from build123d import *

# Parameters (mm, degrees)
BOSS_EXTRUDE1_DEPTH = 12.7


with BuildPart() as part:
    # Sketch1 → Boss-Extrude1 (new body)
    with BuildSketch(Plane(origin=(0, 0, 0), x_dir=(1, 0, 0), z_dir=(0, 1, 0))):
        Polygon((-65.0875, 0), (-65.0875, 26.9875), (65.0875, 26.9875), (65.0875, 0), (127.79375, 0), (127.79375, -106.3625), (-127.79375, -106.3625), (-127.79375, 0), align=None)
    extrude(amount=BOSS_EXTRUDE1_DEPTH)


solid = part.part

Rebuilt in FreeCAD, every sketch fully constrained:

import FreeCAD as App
import Part
import Sketcher

V = App.Vector
Q = App.Units.Quantity


def add_polygon(sketch, points):
    """Adds a closed chain of lines whose ends are joined by coincident constraints."""
    first, n = sketch.GeometryCount, len(points)
    for a, b in zip(points, points[1:] + points[:1]):
        sketch.addGeometry(Part.LineSegment(App.Vector(*a, 0), App.Vector(*b, 0)), False)
    for i in range(n):
        sketch.addConstraint(Sketcher.Constraint("Coincident", first + i, 2, first + (i + 1) % n, 1))

doc = App.newDocument("Part")
params = doc.addObject("Spreadsheet::Sheet", "Params")
for row, (alias, value) in enumerate([
    ("sketch1_width", "2.46875 in"),
    ("sketch1_width2", "10.0625 in"),
    ("sketch1_height", "1.0625 in"),
    ("sketch1_height2", "4.1875 in"),
    ("pad1_length", "0.5 in"),
], start=1):
    params.set(f"A{row}", alias)
    params.set(f"B{row}", "=" + value)
    params.setAlias(f"B{row}", alias)

body = doc.addObject("PartDesign::Body", "Body")

sketch1 = body.newObject("Sketcher::SketchObject", "Sketch")
sketch1.AttachmentSupport = (doc.getObject("XZ_Plane"), [""])
sketch1.MapMode = "FlatFace"
add_polygon(sketch1, [(-65, -27), (-65, 0), (-128, 0), (-128, 106), (128, 106), (128, 0), (65, 0), (65, -27)])
sketch1.addConstraint(Sketcher.Constraint("Vertical", 0))
sketch1.addConstraint(Sketcher.Constraint("Horizontal", 1))
sketch1.addConstraint(Sketcher.Constraint("Vertical", 2))
sketch1.addConstraint(Sketcher.Constraint("Horizontal", 3))
sketch1.addConstraint(Sketcher.Constraint("Vertical", 4))
sketch1.addConstraint(Sketcher.Constraint("Horizontal", 5))
sketch1.addConstraint(Sketcher.Constraint("Vertical", 6))
sketch1.addConstraint(Sketcher.Constraint("Horizontal", 7))
sketch1.addConstraint(Sketcher.Constraint("Symmetric", 1, 2, 4, 2, -1, 1))
sketch1.addConstraint(Sketcher.Constraint("Symmetric", 0, 2, 5, 2, -2))
sketch1.addConstraint(Sketcher.Constraint("DistanceX", 1, 2, 1, 1, Q("2.46875 in")))
sketch1.addConstraint(Sketcher.Constraint("DistanceX", 3, 1, 3, 2, Q("10.0625 in")))
sketch1.addConstraint(Sketcher.Constraint("DistanceY", 0, 1, 0, 2, Q("1.0625 in")))
sketch1.addConstraint(Sketcher.Constraint("DistanceY", 2, 1, 2, 2, Q("4.1875 in")))
sketch1.setExpression("Constraints[18]", "Params.sketch1_width")
sketch1.setExpression("Constraints[19]", "Params.sketch1_width2")
sketch1.setExpression("Constraints[20]", "Params.sketch1_height")
sketch1.setExpression("Constraints[21]", "Params.sketch1_height2")
pad1 = body.newObject("PartDesign::Pad", "Pad")
pad1.Profile = sketch1
pad1.setExpression("Length", "Params.pad1_length")
pad1.Reversed = True

doc.recompute()
